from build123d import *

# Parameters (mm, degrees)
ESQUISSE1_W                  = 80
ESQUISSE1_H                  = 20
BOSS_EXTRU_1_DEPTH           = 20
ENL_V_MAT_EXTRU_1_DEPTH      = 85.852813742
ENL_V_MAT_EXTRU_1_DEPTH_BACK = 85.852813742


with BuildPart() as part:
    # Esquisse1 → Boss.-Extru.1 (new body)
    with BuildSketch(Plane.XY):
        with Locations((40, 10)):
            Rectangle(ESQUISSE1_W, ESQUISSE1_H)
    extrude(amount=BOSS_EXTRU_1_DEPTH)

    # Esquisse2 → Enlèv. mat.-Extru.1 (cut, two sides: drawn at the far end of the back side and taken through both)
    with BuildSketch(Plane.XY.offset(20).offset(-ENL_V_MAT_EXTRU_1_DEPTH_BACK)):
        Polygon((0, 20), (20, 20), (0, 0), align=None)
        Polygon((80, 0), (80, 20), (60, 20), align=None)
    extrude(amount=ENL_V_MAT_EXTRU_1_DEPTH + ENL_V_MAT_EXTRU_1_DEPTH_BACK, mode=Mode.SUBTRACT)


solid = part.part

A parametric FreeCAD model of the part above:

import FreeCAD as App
import Part
import Sketcher

V = App.Vector
Q = App.Units.Quantity

doc = App.newDocument("Part")
body = doc.addObject("PartDesign::Body", "Body")

# Sketch on XY plane
sketch1 = doc.addObject("Sketcher::SketchObject", "Sketch")
body.addObject(sketch1)
sketch1.AttachmentSupport = (doc.XY_Plane, [""])
sketch1.MapMode = "FlatFace"
sketch1.addGeometry(Part.LineSegment(V(0, 20, 0), V(0, 0, 0)), False)
sketch1.addGeometry(Part.LineSegment(V(0, 0, 0), V(80, 0, 0)), False)
sketch1.addGeometry(Part.LineSegment(V(80, 0, 0), V(80, 20, 0)), False)
sketch1.addGeometry(Part.LineSegment(V(80, 20, 0), V(0, 20, 0)), False)
sketch1.addConstraint(Sketcher.Constraint("Coincident", 0, 2, 1, 1))
sketch1.addConstraint(Sketcher.Constraint("Coincident", 1, 2, 2, 1))
sketch1.addConstraint(Sketcher.Constraint("Coincident", 2, 2, 3, 1))
sketch1.addConstraint(Sketcher.Constraint("Coincident", 3, 2, 0, 1))
sketch1.addConstraint(Sketcher.Constraint("Vertical", 0))
sketch1.addConstraint(Sketcher.Constraint("Horizontal", 1))
sketch1.addConstraint(Sketcher.Constraint("Vertical", 2))
sketch1.addConstraint(Sketcher.Constraint("Horizontal", 3))
sketch1.addConstraint(Sketcher.Constraint("Coincident", 0, 2, -1, 1))
sketch1.addConstraint(Sketcher.Constraint("DistanceX", 1, 1, 1, 2, Q("80 mm")))
sketch1.addConstraint(Sketcher.Constraint("DistanceY", 0, 2, 0, 1, Q("20 mm")))
pad1 = doc.addObject("PartDesign::Pad", "Pad")
body.addObject(pad1)
pad1.Profile = sketch1
pad1.Length = 20

# Sketch on XY plane
sketch2 = doc.addObject("Sketcher::SketchObject", "Sketch001")
body.addObject(sketch2)
sketch2.AttachmentSupport = (doc.XY_Plane, [""])
sketch2.MapMode = "FlatFace"
sketch2.AttachmentOffset = App.Placement(V(0, 0, 20), App.Rotation())
sketch2.addGeometry(Part.LineSegment(V(20, 20, 0), V(0, 20, 0)), False)
sketch2.addGeometry(Part.LineSegment(V(0, 20, 0), V(0, 0, 0)), False)
sketch2.addGeometry(Part.LineSegment(V(0, 0, 0), V(20, 20, 0)), False)
sketch2.addGeometry(Part.LineSegment(V(80, 0, 0), V(80, 20, 0)), False)
sketch2.addGeometry(Part.LineSegment(V(80, 20, 0), V(60, 20, 0)), False)
sketch2.addGeometry(Part.LineSegment(V(60, 20, 0), V(80, 0, 0)), False)
sketch2.addConstraint(Sketcher.Constraint("Coincident", 0, 2, 1, 1))
sketch2.addConstraint(Sketcher.Constraint("Coincident", 1, 2, 2, 1))
sketch2.addConstraint(Sketcher.Constraint("Coincident", 2, 2, 0, 1))
sketch2.addConstraint(Sketcher.Constraint("Coincident", 3, 2, 4, 1))
sketch2.addConstraint(Sketcher.Constraint("Coincident", 4, 2, 5, 1))
sketch2.addConstraint(Sketcher.Constraint("Coincident", 5, 2, 3, 1))
sketch2.addConstraint(Sketcher.Constraint("Horizontal", 0))
sketch2.addConstraint(Sketcher.Constraint("Vertical", 1))
sketch2.addConstraint(Sketcher.Constraint("Vertical", 3))
sketch2.addConstraint(Sketcher.Constraint("Horizontal", 4))
sketch2.addConstraint(Sketcher.Constraint("Coincident", 1, 2, -1, 1))
sketch2.addConstraint(Sketcher.Constraint("PointOnObject", 5, 2, -1))
sketch2.addConstraint(Sketcher.Constraint("Perpendicular", 2, 5))
sketch2.addConstraint(Sketcher.Constraint("Horizontal", 2, 2, 3, 2))
sketch2.addConstraint(Sketcher.Constraint("Equal", 0, 4))
sketch2.addConstraint(Sketcher.Constraint("DistanceX", 0, 2, 0, 1, Q("20 mm")))
sketch2.addConstraint(Sketcher.Constraint("DistanceX", -1, 1, 3, 2, Q("80 mm")))
pocket1 = doc.addObject("PartDesign::Pocket", "Pocket")
body.addObject(pocket1)
pocket1.Profile = sketch2
pocket1.Type = "ThroughAll"
pocket1.Midplane = True

doc.recompute()
